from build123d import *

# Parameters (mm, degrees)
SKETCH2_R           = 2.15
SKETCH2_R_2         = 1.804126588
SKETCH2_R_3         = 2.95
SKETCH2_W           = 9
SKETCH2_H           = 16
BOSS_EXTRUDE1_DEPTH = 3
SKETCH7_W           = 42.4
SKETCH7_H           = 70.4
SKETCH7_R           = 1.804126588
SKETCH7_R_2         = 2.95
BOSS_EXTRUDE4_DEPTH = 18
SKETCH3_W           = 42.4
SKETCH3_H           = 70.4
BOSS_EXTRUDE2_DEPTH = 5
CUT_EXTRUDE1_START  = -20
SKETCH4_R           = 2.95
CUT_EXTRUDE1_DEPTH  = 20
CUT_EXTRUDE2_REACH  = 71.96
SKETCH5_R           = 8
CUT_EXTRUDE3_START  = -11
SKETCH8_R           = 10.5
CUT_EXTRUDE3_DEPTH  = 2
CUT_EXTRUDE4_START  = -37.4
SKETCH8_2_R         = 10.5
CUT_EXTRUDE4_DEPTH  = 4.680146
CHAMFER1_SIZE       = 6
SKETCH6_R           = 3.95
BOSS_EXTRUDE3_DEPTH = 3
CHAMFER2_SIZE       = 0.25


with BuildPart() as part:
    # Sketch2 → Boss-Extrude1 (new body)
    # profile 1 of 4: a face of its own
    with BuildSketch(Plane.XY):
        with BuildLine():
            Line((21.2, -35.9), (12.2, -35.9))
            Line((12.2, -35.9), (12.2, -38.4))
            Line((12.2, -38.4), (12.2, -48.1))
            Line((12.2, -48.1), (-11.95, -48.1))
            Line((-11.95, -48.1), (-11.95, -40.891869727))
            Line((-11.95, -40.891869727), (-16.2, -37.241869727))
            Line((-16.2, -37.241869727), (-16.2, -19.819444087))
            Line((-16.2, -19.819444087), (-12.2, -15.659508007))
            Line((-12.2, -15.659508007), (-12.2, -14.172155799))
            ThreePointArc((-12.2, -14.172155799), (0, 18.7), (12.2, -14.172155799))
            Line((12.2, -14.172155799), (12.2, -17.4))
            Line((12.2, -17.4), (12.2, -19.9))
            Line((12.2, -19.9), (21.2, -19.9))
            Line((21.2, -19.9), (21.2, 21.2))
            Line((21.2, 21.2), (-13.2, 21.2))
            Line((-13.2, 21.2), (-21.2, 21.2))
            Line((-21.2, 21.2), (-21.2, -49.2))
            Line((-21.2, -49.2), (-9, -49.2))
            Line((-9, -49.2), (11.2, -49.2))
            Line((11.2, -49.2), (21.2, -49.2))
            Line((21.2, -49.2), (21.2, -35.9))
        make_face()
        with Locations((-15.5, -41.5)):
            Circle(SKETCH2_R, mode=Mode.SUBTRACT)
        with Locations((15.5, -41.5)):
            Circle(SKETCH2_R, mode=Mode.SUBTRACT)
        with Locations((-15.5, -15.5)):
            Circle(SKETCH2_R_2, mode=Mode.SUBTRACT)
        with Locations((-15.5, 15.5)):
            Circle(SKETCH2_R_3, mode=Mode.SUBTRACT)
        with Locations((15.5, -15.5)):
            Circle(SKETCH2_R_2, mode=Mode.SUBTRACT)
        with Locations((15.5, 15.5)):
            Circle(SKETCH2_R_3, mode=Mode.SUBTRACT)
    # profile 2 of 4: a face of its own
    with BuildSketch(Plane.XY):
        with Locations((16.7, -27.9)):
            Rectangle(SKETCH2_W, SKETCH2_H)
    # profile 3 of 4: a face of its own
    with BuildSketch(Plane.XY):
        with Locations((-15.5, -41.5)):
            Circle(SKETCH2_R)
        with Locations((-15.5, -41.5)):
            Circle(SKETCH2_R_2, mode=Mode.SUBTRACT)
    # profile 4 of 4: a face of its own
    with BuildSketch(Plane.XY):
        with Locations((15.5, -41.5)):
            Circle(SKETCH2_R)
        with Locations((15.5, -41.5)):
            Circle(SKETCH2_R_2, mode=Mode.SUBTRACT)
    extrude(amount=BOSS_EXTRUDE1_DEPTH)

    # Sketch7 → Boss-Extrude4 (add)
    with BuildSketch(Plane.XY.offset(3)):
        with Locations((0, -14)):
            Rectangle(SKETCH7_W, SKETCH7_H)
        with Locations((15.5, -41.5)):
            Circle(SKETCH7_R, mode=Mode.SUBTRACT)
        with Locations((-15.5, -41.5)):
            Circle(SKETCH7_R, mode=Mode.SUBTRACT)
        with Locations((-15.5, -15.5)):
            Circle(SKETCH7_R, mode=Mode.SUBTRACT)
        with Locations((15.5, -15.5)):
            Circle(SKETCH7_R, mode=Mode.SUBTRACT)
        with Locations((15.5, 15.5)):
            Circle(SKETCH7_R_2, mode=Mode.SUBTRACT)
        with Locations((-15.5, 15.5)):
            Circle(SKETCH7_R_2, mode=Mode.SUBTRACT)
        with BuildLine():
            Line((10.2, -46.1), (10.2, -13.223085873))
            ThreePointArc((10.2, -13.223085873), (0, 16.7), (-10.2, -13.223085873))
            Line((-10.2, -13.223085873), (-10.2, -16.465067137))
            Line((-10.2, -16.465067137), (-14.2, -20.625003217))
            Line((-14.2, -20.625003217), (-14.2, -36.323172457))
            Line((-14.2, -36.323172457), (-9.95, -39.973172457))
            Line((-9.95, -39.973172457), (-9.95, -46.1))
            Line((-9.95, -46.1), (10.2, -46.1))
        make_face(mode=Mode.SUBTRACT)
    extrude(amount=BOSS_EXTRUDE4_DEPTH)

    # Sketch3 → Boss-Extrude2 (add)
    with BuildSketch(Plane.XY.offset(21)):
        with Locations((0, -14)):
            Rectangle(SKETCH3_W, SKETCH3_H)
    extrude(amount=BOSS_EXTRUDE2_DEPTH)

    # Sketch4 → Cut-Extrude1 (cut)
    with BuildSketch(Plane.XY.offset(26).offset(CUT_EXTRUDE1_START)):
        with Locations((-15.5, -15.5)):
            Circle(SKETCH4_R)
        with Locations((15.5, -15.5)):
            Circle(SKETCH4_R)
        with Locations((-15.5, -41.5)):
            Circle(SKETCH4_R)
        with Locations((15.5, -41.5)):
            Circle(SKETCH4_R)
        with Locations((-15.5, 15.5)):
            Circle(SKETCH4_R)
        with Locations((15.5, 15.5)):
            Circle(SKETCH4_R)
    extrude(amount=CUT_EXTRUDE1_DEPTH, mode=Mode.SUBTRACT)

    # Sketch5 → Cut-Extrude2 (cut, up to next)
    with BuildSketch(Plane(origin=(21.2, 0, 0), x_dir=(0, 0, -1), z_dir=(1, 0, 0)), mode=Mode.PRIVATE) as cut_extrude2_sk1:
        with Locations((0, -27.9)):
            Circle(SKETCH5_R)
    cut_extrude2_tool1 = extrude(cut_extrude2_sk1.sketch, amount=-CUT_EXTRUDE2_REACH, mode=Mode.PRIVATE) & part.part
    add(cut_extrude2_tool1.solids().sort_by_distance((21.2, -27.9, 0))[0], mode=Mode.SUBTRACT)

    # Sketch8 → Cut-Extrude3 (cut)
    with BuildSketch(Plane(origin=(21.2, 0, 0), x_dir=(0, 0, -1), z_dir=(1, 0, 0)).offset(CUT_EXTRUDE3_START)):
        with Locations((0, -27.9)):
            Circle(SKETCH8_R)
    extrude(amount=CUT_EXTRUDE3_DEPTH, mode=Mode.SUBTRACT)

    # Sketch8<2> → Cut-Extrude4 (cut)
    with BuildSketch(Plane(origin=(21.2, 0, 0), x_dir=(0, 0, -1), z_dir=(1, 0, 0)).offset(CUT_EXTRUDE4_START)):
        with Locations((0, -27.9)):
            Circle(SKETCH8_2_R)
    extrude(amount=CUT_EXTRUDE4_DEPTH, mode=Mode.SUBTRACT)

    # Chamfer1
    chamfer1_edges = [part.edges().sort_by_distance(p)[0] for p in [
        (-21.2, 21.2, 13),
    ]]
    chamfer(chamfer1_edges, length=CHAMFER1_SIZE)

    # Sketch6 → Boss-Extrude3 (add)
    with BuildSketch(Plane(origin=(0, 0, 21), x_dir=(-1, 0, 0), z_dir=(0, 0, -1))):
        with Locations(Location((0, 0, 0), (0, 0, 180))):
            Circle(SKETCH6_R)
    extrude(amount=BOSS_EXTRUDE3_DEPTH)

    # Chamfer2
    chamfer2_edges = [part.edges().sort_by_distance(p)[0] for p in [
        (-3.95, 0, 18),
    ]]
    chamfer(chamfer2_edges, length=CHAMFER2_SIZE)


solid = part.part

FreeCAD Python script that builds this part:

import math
import FreeCAD as App
import Part
import Sketcher


def edges_at(feature, points):
    """Names of the edges that pass closest to the given points."""
    edges = feature.Shape.Edges
    near = lambda p: min(range(len(edges)), key=lambda i: edges[i].distToShape(Part.Vertex(*p))[0])
    return sorted({f"Edge{near(p) + 1}" for p in points})


def add_polygon(sketch, points):
    """Adds a closed chain of lines whose ends are joined by coincident constraints."""
    first, n = sketch.GeometryCount, len(points)
    for a, b in zip(points, points[1:] + points[:1]):
        sketch.addGeometry(Part.LineSegment(App.Vector(*a, 0), App.Vector(*b, 0)), False)
    for i in range(n):
        sketch.addConstraint(Sketcher.Constraint("Coincident", first + i, 2, first + (i + 1) % n, 1))

doc = App.newDocument("Part")
body = doc.addObject("PartDesign::Body", "Body")

sketch1 = doc.addObject("Sketcher::SketchObject", "Sketch")
body.addObject(sketch1)
sketch1.AttachmentSupport = (doc.XY_Plane, [""])
sketch1.MapMode = "FlatFace"
add_polygon(sketch1, [(21.2, -49.2), (21.2, 21.2), (-21.2, 21.2), (-21.2, -49.2)])
sketch1.addGeometry(Part.LineSegment(App.Vector(12.2, -48.1, 0), App.Vector(-11.95, -48.1, 0)), False)
sketch1.addGeometry(Part.LineSegment(App.Vector(-11.95, -48.1, 0), App.Vector(-11.95, -40.89187, 0)), False)
sketch1.addGeometry(Part.LineSegment(App.Vector(-11.95, -40.89187, 0), App.Vector(-16.2, -37.24187, 0)), False)
sketch1.addGeometry(Part.LineSegment(App.Vector(-16.2, -37.24187, 0), App.Vector(-16.2, -19.819444, 0)), False)
sketch1.addGeometry(Part.LineSegment(App.Vector(-16.2, -19.819444, 0), App.Vector(-12.2, -15.659508, 0)), False)
sketch1.addGeometry(Part.LineSegment(App.Vector(-12.2, -15.659508, 0), App.Vector(-12.2, -14.172156, 0)), False)
sketch1.addGeometry(Part.ArcOfCircle(Part.Circle(App.Vector(0, 0, 0), App.Vector(0, 0, 1), 18.7), math.radians(-49.276718), math.radians(229.276718)), False)
sketch1.addGeometry(Part.LineSegment(App.Vector(12.2, -14.172156, 0), App.Vector(12.2, -48.1, 0)), False)
sketch1.addGeometry(Part.Circle(App.Vector(-15.5, -15.5, 0), App.Vector(0, 0, 1), 1.804127), False)
sketch1.addGeometry(Part.Circle(App.Vector(15.5, -15.5, 0), App.Vector(0, 0, 1), 1.804127), False)
sketch1.addGeometry(Part.Circle(App.Vector(-15.5, 15.5, 0), App.Vector(0, 0, 1), 2.95), False)
sketch1.addGeometry(Part.Circle(App.Vector(15.5, 15.5, 0), App.Vector(0, 0, 1), 2.95), False)
sketch1.addGeometry(Part.Circle(App.Vector(-15.5, -41.5, 0), App.Vector(0, 0, 1), 1.804127), False)
sketch1.addGeometry(Part.Circle(App.Vector(15.5, -41.5, 0), App.Vector(0, 0, 1), 1.804127), False)
sketch1.addConstraint([
    Sketcher.Constraint("Coincident", 4, 2, 5, 1),
    Sketcher.Constraint("Coincident", 5, 2, 6, 1),
    Sketcher.Constraint("Coincident", 6, 2, 7, 1),
    Sketcher.Constraint("Coincident", 7, 2, 8, 1),
    Sketcher.Constraint("Coincident", 8, 2, 9, 1),
    Sketcher.Constraint("Coincident", 9, 2, 10, 2),
    Sketcher.Constraint("Coincident", 10, 1, 11, 1),
    Sketcher.Constraint("Coincident", 11, 2, 4, 1),
    Sketcher.Constraint("Vertical", 0),
    Sketcher.Constraint("Horizontal", 1),
    Sketcher.Constraint("Vertical", 2),
    Sketcher.Constraint("Horizontal", 3),
    Sketcher.Constraint("Horizontal", 4),
    Sketcher.Constraint("Vertical", 5),
    Sketcher.Constraint("Vertical", 7),
    Sketcher.Constraint("Vertical", 9),
    Sketcher.Constraint("Vertical", 11),
    Sketcher.Constraint("Coincident", 10, 3, -1, 1),
    Sketcher.Constraint("Equal", 12, 13),
    Sketcher.Constraint("Equal", 14, 15),
    Sketcher.Constraint("Equal", 13, 16),
    Sketcher.Constraint("Equal", 16, 17),
    Sketcher.Constraint("Symmetric", 13, 3, 14, 3, -1, 1),
    Sketcher.Constraint("Symmetric", 12, 3, 15, 3, -1, 1),
    Sketcher.Constraint("Symmetric", 12, 3, 13, 3, -2),
    Sketcher.Constraint("Symmetric", 16, 3, 17, 3, -2),
    Sketcher.Constraint("Horizontal", 9, 2, 10, 1),
    Sketcher.Constraint("Vertical", 14, 3, 16, 3),
    Sketcher.Constraint("Diameter", 14, 5.9),
    Sketcher.Constraint("Radius", 10, 18.7),
    Sketcher.Constraint("DistanceX", 1, 2, 1, 1, 42.4),
    Sketcher.Constraint("DistanceY", 0, 1, 0, 2, 70.4),
    Sketcher.Constraint("DistanceX", 12, 3, 13, 3, 31.0),
    Sketcher.Constraint("DistanceY", 12, 3, 14, 3, 31.0),
    Sketcher.Constraint("DistanceY", 16, 3, 12, 3, 26.0),
    Sketcher.Constraint("DistanceX", 2, 2, 6, 2, 5.0),
    Sketcher.Constraint("DistanceX", 7, 2, 8, 2, 4.0),
    Sketcher.Constraint("DistanceX", 11, 2, 3, 2, 9.0),
    Sketcher.Constraint("DistanceX", 4, 2, 4, 1, 24.15),
    Sketcher.Constraint("DistanceY", -1, 1, 0, 2, 21.2),
    Sketcher.Constraint("DistanceY", 4, 2, -1, 1, 48.1),
    Sketcher.Constraint("DistanceY", 5, 2, 6, 2, 3.65),
    Sketcher.Constraint("Diameter", 12, 3.608253),
    Sketcher.Constraint("DistanceY", 5, 1, 5, 2, 7.20813),
    Sketcher.Constraint("DistanceY", 7, 1, 7, 2, 17.422426),
    Sketcher.Constraint("DistanceY", 9, 1, 9, 2, 1.487352),
])
pad1 = doc.addObject("PartDesign::Pad", "Pad")
body.addObject(pad1)
pad1.Profile = sketch1
pad1.Length = 3

sketch2 = doc.addObject("Sketcher::SketchObject", "Sketch001")
body.addObject(sketch2)
sketch2.AttachmentSupport = (doc.XY_Plane, [""])
sketch2.MapMode = "FlatFace"
sketch2.AttachmentOffset = App.Placement(App.Vector(0, 0, 3), App.Rotation())
add_polygon(sketch2, [(-21.2, 21.2), (-21.2, -49.2), (21.2, -49.2), (21.2, 21.2)])
sketch2.addGeometry(Part.Circle(App.Vector(-15.5, -41.5, 0), App.Vector(0, 0, 1), 1.804127), False)
sketch2.addGeometry(Part.Circle(App.Vector(-15.5, -15.5, 0), App.Vector(0, 0, 1), 1.804127), False)
sketch2.addGeometry(Part.Circle(App.Vector(15.5, -41.5, 0), App.Vector(0, 0, 1), 1.804127), False)
sketch2.addGeometry(Part.LineSegment(App.Vector(10.2, -13.223086, 0), App.Vector(10.2, -46.1, 0)), False)
sketch2.addGeometry(Part.LineSegment(App.Vector(10.2, -46.1, 0), App.Vector(-9.95, -46.1, 0)), False)
sketch2.addGeometry(Part.LineSegment(App.Vector(-9.95, -46.1, 0), App.Vector(-9.95, -39.973172, 0)), False)
sketch2.addGeometry(Part.LineSegment(App.Vector(-9.95, -39.973172, 0), App.Vector(-14.2, -36.323172, 0)), False)
sketch2.addGeometry(Part.LineSegment(App.Vector(-14.2, -36.323172, 0), App.Vector(-14.2, -20.625003, 0)), False)
sketch2.addGeometry(Part.LineSegment(App.Vector(-14.2, -20.625003, 0), App.Vector(-10.2, -16.465067, 0)), False)
sketch2.addGeometry(Part.LineSegment(App.Vector(-10.2, -16.465067, 0), App.Vector(-10.2, -13.223086, 0)), False)
sketch2.addGeometry(Part.ArcOfCircle(Part.Circle(App.Vector(0, 0, 0), App.Vector(0, 0, 1), 16.7), math.radians(-52.354189), math.radians(232.354189)), False)
sketch2.addGeometry(Part.Circle(App.Vector(15.5, -15.5, 0), App.Vector(0, 0, 1), 1.804127), False)
sketch2.addGeometry(Part.Circle(App.Vector(-15.5, 15.5, 0), App.Vector(0, 0, 1), 2.95), False)
sketch2.addGeometry(Part.Circle(App.Vector(15.5, 15.5, 0), App.Vector(0, 0, 1), 2.95), False)
sketch2.addConstraint([
    Sketcher.Constraint("Coincident", 7, 2, 8, 1),
    Sketcher.Constraint("Coincident", 8, 2, 9, 1),
    Sketcher.Constraint("Coincident", 9, 2, 10, 1),
    Sketcher.Constraint("Coincident", 10, 2, 11, 1),
    Sketcher.Constraint("Coincident", 11, 2, 12, 1),
    Sketcher.Constraint("Coincident", 12, 2, 13, 1),
    Sketcher.Constraint("Coincident", 13, 2, 14, 2),
    Sketcher.Constraint("Coincident", 14, 1, 7, 1),
    Sketcher.Constraint("Vertical", 0),
    Sketcher.Constraint("Horizontal", 1),
    Sketcher.Constraint("Vertical", 2),
    Sketcher.Constraint("Horizontal", 3),
    Sketcher.Constraint("Vertical", 7),
    Sketcher.Constraint("Horizontal", 8),
    Sketcher.Constraint("Vertical", 9),
    Sketcher.Constraint("Vertical", 11),
    Sketcher.Constraint("Vertical", 13),
    Sketcher.Constraint("Coincident", 14, 3, -1, 1),
    Sketcher.Constraint("Equal", 4, 5),
    Sketcher.Constraint("Equal", 5, 6),
    Sketcher.Constraint("Equal", 6, 15),
    Sketcher.Constraint("Equal", 16, 17),
    Sketcher.Constraint("Symmetric", 15, 3, 16, 3, -1, 1),
    Sketcher.Constraint("Symmetric", 5, 3, 17, 3, -1, 1),
    Sketcher.Constraint("Symmetric", 4, 3, 6, 3, -2),
    Sketcher.Constraint("Symmetric", 5, 3, 15, 3, -2),
    Sketcher.Constraint("Horizontal", 13, 2, 14, 1),
    Sketcher.Constraint("Vertical", 4, 3, 5, 3),
    Sketcher.Constraint("Diameter", 16, 5.9),
    Sketcher.Constraint("Radius", 14, 16.7),
    Sketcher.Constraint("DistanceX", 1, 1, 1, 2, 42.4),
    Sketcher.Constraint("DistanceY", 0, 2, 0, 1, 70.4),
    Sketcher.Constraint("DistanceY", 4, 3, 5, 3, 26.0),
    Sketcher.Constraint("DistanceX", 4, 3, 6, 3, 31.0),
    Sketcher.Constraint("DistanceY", 5, 3, 16, 3, 31.0),
    Sketcher.Constraint("DistanceX", 7, 2, 1, 2, 11.0),
    Sketcher.Constraint("DistanceX", 0, 2, 10, 2, 7.0),
    Sketcher.Constraint("DistanceX", 11, 2, 12, 2, 4.0),
    Sketcher.Constraint("DistanceX", 8, 2, 8, 1, 20.15),
    Sketcher.Constraint("DistanceY", 0, 2, -1, 1, 49.2),
    Sketcher.Constraint("DistanceY", 7, 2, -1, 1, 46.1),
    Sketcher.Constraint("DistanceY", 9, 2, 10, 2, 3.65),
    Sketcher.Constraint("Diameter", 4, 3.608253),
    Sketcher.Constraint("DistanceY", 11, 1, 11, 2, 15.698169),
    Sketcher.Constraint("DistanceY", 13, 1, 13, 2, 3.241981),
    Sketcher.Constraint("DistanceY", 9, 1, 9, 2, 6.126828),
])
pad2 = doc.addObject("PartDesign::Pad", "Pad001")
body.addObject(pad2)
pad2.Profile = sketch2
pad2.Length = 18

sketch3 = doc.addObject("Sketcher::SketchObject", "Sketch002")
body.addObject(sketch3)
sketch3.AttachmentSupport = (doc.XY_Plane, [""])
sketch3.MapMode = "FlatFace"
sketch3.AttachmentOffset = App.Placement(App.Vector(0, 0, 21), App.Rotation())
add_polygon(sketch3, [(-21.2, 21.2), (-21.2, -49.2), (21.2, -49.2), (21.2, 21.2)])
sketch3.addConstraint([
    Sketcher.Constraint("Vertical", 0),
    Sketcher.Constraint("Horizontal", 1),
    Sketcher.Constraint("Vertical", 2),
    Sketcher.Constraint("Horizontal", 3),
    Sketcher.Constraint("DistanceX", 1, 1, 1, 2, 42.4),
    Sketcher.Constraint("DistanceY", 0, 2, 0, 1, 70.4),
    Sketcher.Constraint("DistanceX", 0, 2, -1, 1, 21.2),
    Sketcher.Constraint("DistanceY", 0, 2, -1, 1, 49.2),
])
pad3 = doc.addObject("PartDesign::Pad", "Pad002")
body.addObject(pad3)
pad3.Profile = sketch3
pad3.Length = 5

sketch4 = doc.addObject("Sketcher::SketchObject", "Sketch003")
body.addObject(sketch4)
sketch4.AttachmentSupport = (doc.XY_Plane, [""])
sketch4.MapMode = "FlatFace"
sketch4.AttachmentOffset = App.Placement(App.Vector(0, 0, 6), App.Rotation())
sketch4.addGeometry([
    Part.Circle(App.Vector(-15.5, -15.5, 0), App.Vector(0, 0, 1), 2.95),
    Part.Circle(App.Vector(15.5, -15.5, 0), App.Vector(0, 0, 1), 2.95),
    Part.Circle(App.Vector(-15.5, -41.5, 0), App.Vector(0, 0, 1), 2.95),
    Part.Circle(App.Vector(15.5, -41.5, 0), App.Vector(0, 0, 1), 2.95),
    Part.Circle(App.Vector(-15.5, 15.5, 0), App.Vector(0, 0, 1), 2.95),
    Part.Circle(App.Vector(15.5, 15.5, 0), App.Vector(0, 0, 1), 2.95),
], False)
sketch4.addConstraint([
    Sketcher.Constraint("Equal", 0, 1),
    Sketcher.Constraint("Equal", 1, 2),
    Sketcher.Constraint("Equal", 2, 3),
    Sketcher.Constraint("Equal", 3, 4),
    Sketcher.Constraint("Equal", 4, 5),
    Sketcher.Constraint("Symmetric", 1, 3, 4, 3, -1, 1),
    Sketcher.Constraint("Symmetric", 0, 3, 5, 3, -1, 1),
    Sketcher.Constraint("Symmetric", 0, 3, 1, 3, -2),
    Sketcher.Constraint("Symmetric", 2, 3, 3, 3, -2),
    Sketcher.Constraint("Vertical", 0, 3, 2, 3),
    Sketcher.Constraint("Diameter", 0, 5.9),
    Sketcher.Constraint("DistanceX", 0, 3, 1, 3, 31.0),
    Sketcher.Constraint("DistanceY", 2, 3, 0, 3, 26.0),
    Sketcher.Constraint("DistanceY", 0, 3, 4, 3, 31.0),
])
pocket1 = doc.addObject("PartDesign::Pocket", "Pocket")
body.addObject(pocket1)
pocket1.Profile = sketch4
pocket1.Length = 20
pocket1.Reversed = True

sketch5 = doc.addObject("Sketcher::SketchObject", "Sketch004")
body.addObject(sketch5)
sketch5.AttachmentSupport = (doc.YZ_Plane, [""])
sketch5.MapMode = "FlatFace"
sketch5.AttachmentOffset = App.Placement(App.Vector(0, 0, 21.2), App.Rotation())
sketch5.addGeometry(Part.Circle(App.Vector(-27.9, 0, 0), App.Vector(0, 0, 1), 8), False)
sketch5.addConstraint([
    Sketcher.Constraint("PointOnObject", 0, 3, -1),
    Sketcher.Constraint("Diameter", 0, 16.0),
    Sketcher.Constraint("DistanceX", 0, 3, -1, 1, 27.9),
])
pocket2 = doc.addObject("PartDesign::Pocket", "Pocket001")
body.addObject(pocket2)
pocket2.Profile = sketch5
pocket2.Length = 11

sketch6 = doc.addObject("Sketcher::SketchObject", "Sketch005")
body.addObject(sketch6)
sketch6.AttachmentSupport = (doc.YZ_Plane, [""])
sketch6.MapMode = "FlatFace"
sketch6.AttachmentOffset = App.Placement(App.Vector(0, 0, 10.2), App.Rotation())
sketch6.addGeometry(Part.Circle(App.Vector(-27.9, 0, 0), App.Vector(0, 0, 1), 10.5), False)
sketch6.addConstraint([
    Sketcher.Constraint("PointOnObject", 0, 3, -1),
    Sketcher.Constraint("Diameter", 0, 21.0),
    Sketcher.Constraint("DistanceX", 0, 3, -1, 1, 27.9),
])
pocket3 = doc.addObject("PartDesign::Pocket", "Pocket002")
body.addObject(pocket3)
pocket3.Profile = sketch6
pocket3.Length = 2
pocket3.Reversed = True

sketch7 = doc.addObject("Sketcher::SketchObject", "Sketch006")
body.addObject(sketch7)
sketch7.AttachmentSupport = (doc.YZ_Plane, [""])
sketch7.MapMode = "FlatFace"
sketch7.AttachmentOffset = App.Placement(App.Vector(0, 0, -16.2), App.Rotation())
sketch7.addGeometry(Part.Circle(App.Vector(-27.9, 0, 0), App.Vector(0, 0, 1), 10.5), False)
sketch7.addConstraint([
    Sketcher.Constraint("PointOnObject", 0, 3, -1),
    Sketcher.Constraint("Diameter", 0, 21.0),
    Sketcher.Constraint("DistanceX", 0, 3, -1, 1, 27.9),
])
pocket4 = doc.addObject("PartDesign::Pocket", "Pocket003")
body.addObject(pocket4)
pocket4.Profile = sketch7
pocket4.Length = 4.680146
pocket4.Reversed = True
doc.recompute()

chamfer = doc.addObject("PartDesign::Chamfer", "Chamfer")
body.addObject(chamfer)
chamfer.Base = (pocket4, edges_at(pocket4, [(-21.2, 21.2, 13)]))
chamfer.Size = 6

sketch8 = doc.addObject("Sketcher::SketchObject", "Sketch007")
body.addObject(sketch8)
sketch8.AttachmentSupport = (doc.XY_Plane, [""])
sketch8.MapMode = "FlatFace"
sketch8.AttachmentOffset = App.Placement(App.Vector(0, 0, 21), App.Rotation())
sketch8.addGeometry(Part.Circle(App.Vector(0, 0, 0), App.Vector(0, 0, 1), 3.95), False)
sketch8.addConstraint([
    Sketcher.Constraint("Coincident", 0, 3, -1, 1),
    Sketcher.Constraint("Diameter", 0, 7.9),
])
pad4 = doc.addObject("PartDesign::Pad", "Pad003")
body.addObject(pad4)
pad4.Profile = sketch8
pad4.Length = 3
pad4.Reversed = True
doc.recompute()

chamfer2 = doc.addObject("PartDesign::Chamfer", "Chamfer001")
body.addObject(chamfer2)
chamfer2.Base = (pad4, edges_at(pad4, [(-3.95, 0, 18)]))
chamfer2.Size = 0.25

doc.recompute()
